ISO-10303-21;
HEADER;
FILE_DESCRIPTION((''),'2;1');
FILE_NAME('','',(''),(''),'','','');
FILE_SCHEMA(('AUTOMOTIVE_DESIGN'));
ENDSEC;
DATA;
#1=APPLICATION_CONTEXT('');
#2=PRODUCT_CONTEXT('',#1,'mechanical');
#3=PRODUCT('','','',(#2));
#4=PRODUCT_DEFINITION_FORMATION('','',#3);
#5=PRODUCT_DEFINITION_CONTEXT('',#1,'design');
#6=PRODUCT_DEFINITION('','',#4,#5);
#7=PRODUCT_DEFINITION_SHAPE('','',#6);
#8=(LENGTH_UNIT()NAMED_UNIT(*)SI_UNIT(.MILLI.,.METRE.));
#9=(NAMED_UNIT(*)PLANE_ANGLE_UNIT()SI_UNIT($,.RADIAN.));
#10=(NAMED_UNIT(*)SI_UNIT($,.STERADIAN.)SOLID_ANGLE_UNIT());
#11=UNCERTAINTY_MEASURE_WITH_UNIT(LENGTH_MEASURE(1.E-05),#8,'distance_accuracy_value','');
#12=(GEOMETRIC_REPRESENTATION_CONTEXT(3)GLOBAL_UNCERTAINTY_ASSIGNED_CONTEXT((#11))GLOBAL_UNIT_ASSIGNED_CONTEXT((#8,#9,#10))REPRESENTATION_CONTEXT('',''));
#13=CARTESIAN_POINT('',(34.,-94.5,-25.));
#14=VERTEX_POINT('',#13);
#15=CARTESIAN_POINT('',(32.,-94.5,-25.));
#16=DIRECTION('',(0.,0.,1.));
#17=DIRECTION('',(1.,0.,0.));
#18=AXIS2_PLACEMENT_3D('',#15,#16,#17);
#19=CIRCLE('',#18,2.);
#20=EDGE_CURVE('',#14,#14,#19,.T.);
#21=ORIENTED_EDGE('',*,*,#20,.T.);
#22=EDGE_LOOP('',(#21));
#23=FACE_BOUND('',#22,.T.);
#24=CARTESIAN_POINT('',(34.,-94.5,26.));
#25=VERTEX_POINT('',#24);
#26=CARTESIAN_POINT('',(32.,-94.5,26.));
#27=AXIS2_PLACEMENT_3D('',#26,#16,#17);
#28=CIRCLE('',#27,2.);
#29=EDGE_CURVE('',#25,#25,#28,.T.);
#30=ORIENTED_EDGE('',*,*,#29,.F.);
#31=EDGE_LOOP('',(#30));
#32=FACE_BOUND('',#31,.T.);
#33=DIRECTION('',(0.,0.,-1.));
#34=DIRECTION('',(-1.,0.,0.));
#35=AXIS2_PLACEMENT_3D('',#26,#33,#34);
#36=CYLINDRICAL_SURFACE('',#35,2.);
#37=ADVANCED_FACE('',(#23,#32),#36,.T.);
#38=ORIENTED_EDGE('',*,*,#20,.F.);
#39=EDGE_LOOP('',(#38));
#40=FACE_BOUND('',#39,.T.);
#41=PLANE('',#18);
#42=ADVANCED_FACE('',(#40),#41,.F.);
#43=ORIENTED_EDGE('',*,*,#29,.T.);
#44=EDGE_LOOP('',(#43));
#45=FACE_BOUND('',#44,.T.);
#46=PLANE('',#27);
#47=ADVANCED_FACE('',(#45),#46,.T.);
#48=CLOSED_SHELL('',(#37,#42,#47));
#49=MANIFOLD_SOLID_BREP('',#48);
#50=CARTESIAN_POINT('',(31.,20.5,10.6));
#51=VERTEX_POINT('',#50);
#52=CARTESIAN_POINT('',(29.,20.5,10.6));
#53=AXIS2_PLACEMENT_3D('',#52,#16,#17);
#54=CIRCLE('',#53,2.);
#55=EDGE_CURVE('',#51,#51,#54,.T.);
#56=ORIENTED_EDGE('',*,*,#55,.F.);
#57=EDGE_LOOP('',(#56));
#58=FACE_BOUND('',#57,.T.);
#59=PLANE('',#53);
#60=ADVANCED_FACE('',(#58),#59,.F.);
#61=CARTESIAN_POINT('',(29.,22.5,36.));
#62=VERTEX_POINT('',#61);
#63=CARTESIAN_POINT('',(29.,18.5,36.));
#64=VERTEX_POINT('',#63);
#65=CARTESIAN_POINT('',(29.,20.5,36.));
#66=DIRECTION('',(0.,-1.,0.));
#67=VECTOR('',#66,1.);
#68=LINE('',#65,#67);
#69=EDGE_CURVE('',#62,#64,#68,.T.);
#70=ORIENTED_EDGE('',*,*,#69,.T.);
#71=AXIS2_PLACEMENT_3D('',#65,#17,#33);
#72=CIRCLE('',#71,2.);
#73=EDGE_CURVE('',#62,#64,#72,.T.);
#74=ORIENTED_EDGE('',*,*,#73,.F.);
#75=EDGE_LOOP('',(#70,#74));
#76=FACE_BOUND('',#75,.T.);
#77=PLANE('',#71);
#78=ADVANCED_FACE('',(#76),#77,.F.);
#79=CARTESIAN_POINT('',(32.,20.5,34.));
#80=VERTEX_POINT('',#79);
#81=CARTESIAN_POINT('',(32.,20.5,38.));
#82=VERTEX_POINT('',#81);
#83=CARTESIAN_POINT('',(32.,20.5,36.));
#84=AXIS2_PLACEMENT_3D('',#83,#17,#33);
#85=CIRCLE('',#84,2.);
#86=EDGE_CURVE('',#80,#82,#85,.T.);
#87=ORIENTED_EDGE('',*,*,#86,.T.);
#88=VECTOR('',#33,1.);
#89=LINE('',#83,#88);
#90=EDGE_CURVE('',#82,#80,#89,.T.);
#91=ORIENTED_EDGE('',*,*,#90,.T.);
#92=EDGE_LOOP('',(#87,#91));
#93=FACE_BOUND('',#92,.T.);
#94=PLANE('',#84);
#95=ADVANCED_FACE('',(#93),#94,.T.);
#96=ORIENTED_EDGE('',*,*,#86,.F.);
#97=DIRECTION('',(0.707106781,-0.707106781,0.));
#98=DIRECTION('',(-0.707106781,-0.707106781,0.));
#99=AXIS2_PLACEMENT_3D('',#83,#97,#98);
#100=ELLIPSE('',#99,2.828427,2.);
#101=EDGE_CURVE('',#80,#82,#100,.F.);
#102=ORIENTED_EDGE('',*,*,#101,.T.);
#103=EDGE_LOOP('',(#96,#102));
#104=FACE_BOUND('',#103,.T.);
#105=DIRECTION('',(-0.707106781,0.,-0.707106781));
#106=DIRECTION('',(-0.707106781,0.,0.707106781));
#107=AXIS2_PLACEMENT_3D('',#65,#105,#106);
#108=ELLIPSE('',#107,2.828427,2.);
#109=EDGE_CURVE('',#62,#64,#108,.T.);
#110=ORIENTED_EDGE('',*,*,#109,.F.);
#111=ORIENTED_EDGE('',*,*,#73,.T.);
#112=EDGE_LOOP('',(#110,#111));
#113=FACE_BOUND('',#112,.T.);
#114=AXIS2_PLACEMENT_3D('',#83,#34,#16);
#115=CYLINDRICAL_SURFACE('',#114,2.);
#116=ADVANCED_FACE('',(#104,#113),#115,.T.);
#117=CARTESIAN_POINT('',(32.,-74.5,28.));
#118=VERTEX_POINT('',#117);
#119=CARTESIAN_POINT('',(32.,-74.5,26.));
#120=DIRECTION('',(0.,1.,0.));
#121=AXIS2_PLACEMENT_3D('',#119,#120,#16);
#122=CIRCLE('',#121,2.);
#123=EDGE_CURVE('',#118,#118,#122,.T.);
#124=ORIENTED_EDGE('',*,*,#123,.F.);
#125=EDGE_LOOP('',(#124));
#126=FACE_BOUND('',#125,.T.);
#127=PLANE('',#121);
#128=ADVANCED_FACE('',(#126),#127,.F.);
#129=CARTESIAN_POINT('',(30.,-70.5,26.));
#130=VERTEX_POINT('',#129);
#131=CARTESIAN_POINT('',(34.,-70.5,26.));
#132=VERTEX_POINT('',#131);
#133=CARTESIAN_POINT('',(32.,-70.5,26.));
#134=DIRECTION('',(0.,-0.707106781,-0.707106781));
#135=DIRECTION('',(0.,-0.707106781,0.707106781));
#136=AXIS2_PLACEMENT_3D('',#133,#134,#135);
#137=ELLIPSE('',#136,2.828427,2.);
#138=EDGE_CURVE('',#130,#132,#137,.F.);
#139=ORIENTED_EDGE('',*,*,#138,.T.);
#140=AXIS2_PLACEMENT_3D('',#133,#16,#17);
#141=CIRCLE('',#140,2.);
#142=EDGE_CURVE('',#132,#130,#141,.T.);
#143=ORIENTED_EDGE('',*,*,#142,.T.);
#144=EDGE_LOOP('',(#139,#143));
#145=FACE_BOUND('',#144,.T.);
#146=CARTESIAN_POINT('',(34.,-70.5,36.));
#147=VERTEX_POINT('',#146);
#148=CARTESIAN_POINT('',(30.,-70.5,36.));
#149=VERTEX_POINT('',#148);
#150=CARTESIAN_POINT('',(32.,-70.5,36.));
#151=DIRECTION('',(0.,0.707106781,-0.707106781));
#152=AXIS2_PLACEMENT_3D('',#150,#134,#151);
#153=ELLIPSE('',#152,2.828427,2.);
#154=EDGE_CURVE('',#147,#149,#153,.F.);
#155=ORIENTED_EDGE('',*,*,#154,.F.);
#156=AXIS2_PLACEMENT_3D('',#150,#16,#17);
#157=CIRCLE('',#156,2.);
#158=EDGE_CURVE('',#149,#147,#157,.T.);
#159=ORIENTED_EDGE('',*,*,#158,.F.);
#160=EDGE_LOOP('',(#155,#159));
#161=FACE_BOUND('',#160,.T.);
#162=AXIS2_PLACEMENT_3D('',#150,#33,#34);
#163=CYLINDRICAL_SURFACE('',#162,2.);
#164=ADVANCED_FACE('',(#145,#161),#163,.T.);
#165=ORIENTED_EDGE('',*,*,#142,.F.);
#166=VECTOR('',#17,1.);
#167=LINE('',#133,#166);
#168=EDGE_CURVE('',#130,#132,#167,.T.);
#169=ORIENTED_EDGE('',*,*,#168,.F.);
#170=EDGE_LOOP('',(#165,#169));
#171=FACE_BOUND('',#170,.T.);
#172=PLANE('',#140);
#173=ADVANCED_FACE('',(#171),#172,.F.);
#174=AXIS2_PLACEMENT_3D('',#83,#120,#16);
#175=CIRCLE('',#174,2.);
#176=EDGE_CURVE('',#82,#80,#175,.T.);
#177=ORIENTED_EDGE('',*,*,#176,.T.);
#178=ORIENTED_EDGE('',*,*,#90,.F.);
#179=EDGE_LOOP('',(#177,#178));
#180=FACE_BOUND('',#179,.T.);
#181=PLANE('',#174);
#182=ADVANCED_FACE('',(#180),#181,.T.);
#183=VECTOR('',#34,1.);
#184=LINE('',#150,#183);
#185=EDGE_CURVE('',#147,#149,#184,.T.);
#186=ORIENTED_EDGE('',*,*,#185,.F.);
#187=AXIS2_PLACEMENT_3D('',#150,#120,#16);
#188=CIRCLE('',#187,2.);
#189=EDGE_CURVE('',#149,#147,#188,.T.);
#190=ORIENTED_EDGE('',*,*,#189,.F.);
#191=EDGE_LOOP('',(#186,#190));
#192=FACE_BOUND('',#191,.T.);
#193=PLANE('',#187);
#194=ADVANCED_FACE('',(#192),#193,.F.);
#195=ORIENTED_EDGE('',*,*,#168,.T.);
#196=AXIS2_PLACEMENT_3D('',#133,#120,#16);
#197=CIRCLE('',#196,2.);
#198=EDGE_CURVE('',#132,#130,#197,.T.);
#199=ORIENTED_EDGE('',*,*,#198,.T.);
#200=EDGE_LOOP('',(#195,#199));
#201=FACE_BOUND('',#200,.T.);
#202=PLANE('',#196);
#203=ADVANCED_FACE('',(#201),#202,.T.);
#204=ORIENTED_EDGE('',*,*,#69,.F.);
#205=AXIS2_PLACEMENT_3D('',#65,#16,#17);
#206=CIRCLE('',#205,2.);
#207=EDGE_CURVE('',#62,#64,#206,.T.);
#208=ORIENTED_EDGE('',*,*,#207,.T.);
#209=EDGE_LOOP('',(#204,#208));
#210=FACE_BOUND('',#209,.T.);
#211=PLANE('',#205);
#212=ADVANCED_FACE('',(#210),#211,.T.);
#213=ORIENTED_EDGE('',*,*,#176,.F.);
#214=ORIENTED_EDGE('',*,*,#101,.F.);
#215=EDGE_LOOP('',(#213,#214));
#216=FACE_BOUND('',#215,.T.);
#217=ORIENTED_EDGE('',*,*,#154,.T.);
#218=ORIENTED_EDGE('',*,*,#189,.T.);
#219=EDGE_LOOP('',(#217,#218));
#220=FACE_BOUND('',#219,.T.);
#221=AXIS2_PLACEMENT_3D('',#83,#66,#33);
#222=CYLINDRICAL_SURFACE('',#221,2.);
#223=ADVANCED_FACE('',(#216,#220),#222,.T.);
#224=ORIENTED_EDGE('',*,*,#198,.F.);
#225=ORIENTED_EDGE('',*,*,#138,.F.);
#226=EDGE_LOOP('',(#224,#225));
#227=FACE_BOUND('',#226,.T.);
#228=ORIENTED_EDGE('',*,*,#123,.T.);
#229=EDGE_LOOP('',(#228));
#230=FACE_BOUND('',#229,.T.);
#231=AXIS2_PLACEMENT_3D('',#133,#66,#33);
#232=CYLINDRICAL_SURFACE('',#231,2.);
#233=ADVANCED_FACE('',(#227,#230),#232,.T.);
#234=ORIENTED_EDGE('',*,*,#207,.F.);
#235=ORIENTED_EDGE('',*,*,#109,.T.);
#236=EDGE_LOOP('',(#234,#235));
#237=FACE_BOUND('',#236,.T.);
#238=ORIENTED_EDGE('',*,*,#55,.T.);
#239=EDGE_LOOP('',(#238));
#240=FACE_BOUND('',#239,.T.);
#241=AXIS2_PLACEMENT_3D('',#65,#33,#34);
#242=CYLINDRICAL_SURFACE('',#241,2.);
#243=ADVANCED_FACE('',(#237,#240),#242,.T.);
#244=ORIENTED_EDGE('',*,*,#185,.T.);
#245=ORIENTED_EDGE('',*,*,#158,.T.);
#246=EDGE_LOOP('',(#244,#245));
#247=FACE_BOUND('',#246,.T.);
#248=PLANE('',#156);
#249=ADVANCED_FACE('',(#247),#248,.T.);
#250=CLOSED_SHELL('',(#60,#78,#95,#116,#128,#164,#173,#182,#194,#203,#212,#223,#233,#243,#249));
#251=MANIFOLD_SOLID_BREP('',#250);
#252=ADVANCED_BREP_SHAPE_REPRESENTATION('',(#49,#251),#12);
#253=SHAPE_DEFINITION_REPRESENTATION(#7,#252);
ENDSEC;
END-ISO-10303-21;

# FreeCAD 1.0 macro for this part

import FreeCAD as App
import Part
import Sketcher

V = App.Vector

doc = App.newDocument("Part")
body = doc.addObject("PartDesign::Body", "Body")

sketch1 = body.newObject("Sketcher::SketchObject", "Sketch")
sketch1.AttachmentSupport = (doc.getObject("XY_Plane"), [""])
sketch1.MapMode = "FlatFace"
sketch1.AttachmentOffset = App.Placement(V(0, 0, -25), App.Rotation())
sketch1.addGeometry(Part.Circle(V(32, -94.5, 0), V(0, 0, 1), 2), False)
sketch1.addConstraint([
    Sketcher.Constraint("Diameter", 0, 4.0),
    Sketcher.Constraint("DistanceX", -1, 1, 0, 3, 32.0),
    Sketcher.Constraint("DistanceY", 0, 3, -1, 1, 94.5),
])
pad1 = body.newObject("PartDesign::Pad", "Pad")
pad1.Profile = sketch1
pad1.Length = 51
body2 = doc.addObject("PartDesign::Body", "Body001")

sketch2 = body2.newObject("Sketcher::SketchObject", "Sketch001")
sketch2.AttachmentSupport = (doc.getObject("XZ_Plane001"), [""])
sketch2.MapMode = "FlatFace"
sketch2.AttachmentOffset = App.Placement(V(0, 0, 74.5), App.Rotation())
sketch2.addGeometry(Part.Circle(V(32, 26, 0), V(0, 0, 1), 2), False)
sketch2.addConstraint([
    Sketcher.Constraint("Diameter", 0, 4.0),
    Sketcher.Constraint("DistanceX", -1, 1, 0, 3, 32.0),
    Sketcher.Constraint("DistanceY", -1, 1, 0, 3, 26.0),
])
pad2 = body2.newObject("PartDesign::Pad", "Pad001")
pad2.Profile = sketch2
pad2.Length = 4
pad2.Reversed = True

sketch3 = body2.newObject("Sketcher::SketchObject", "Sketch002")
sketch3.AttachmentSupport = (doc.getObject("XY_Plane001"), [""])
sketch3.MapMode = "FlatFace"
sketch3.AttachmentOffset = App.Placement(V(0, 0, 26), App.Rotation())
sketch3.addGeometry(Part.Circle(V(32, -70.5, 0), V(0, 0, 1), 2), False)
sketch3.addConstraint([
    Sketcher.Constraint("Diameter", 0, 4.0),
    Sketcher.Constraint("DistanceX", -1, 1, 0, 3, 32.0),
    Sketcher.Constraint("DistanceY", 0, 3, -1, 1, 70.5),
])
pad3 = body2.newObject("PartDesign::Pad", "Pad002")
pad3.Profile = sketch3
pad3.Length = 10

sketch4 = body2.newObject("Sketcher::SketchObject", "Sketch003")
sketch4.AttachmentSupport = (doc.getObject("XZ_Plane001"), [""])
sketch4.MapMode = "FlatFace"
sketch4.AttachmentOffset = App.Placement(V(0, 0, 70.5), App.Rotation())
sketch4.addGeometry(Part.Circle(V(32, 36, 0), V(0, 0, 1), 2), False)
sketch4.addConstraint([
    Sketcher.Constraint("Diameter", 0, 4.0),
    Sketcher.Constraint("DistanceX", -1, 1, 0, 3, 32.0),
    Sketcher.Constraint("DistanceY", -1, 1, 0, 3, 36.0),
])
pad4 = body2.newObject("PartDesign::Pad", "Pad003")
pad4.Profile = sketch4
pad4.Length = 91
pad4.Reversed = True

sketch5 = body2.newObject("Sketcher::SketchObject", "Sketch004")
sketch5.AttachmentSupport = (doc.getObject("YZ_Plane001"), [""])
sketch5.MapMode = "FlatFace"
sketch5.AttachmentOffset = App.Placement(V(0, 0, 29), App.Rotation())
sketch5.addGeometry(Part.Circle(V(20.5, 36, 0), V(0, 0, 1), 2), False)
sketch5.addConstraint([
    Sketcher.Constraint("Diameter", 0, 4.0),
    Sketcher.Constraint("DistanceY", -1, 1, 0, 3, 36.0),
    Sketcher.Constraint("DistanceX", -1, 1, 0, 3, 20.5),
])
pad5 = body2.newObject("PartDesign::Pad", "Pad004")
pad5.Profile = sketch5
pad5.Length = 3

sketch6 = body2.newObject("Sketcher::SketchObject", "Sketch005")
sketch6.AttachmentSupport = (doc.getObject("XY_Plane001"), [""])
sketch6.MapMode = "FlatFace"
sketch6.AttachmentOffset = App.Placement(V(0, 0, 10.6), App.Rotation())
sketch6.addGeometry(Part.Circle(V(29, 20.5, 0), V(0, 0, 1), 2), False)
sketch6.addConstraint([
    Sketcher.Constraint("Diameter", 0, 4.0),
    Sketcher.Constraint("DistanceX", -1, 1, 0, 3, 29.0),
    Sketcher.Constraint("DistanceY", -1, 1, 0, 3, 20.5),
])
pad6 = body2.newObject("PartDesign::Pad", "Pad005")
pad6.Profile = sketch6
pad6.Length = 25.4

doc.recompute()
